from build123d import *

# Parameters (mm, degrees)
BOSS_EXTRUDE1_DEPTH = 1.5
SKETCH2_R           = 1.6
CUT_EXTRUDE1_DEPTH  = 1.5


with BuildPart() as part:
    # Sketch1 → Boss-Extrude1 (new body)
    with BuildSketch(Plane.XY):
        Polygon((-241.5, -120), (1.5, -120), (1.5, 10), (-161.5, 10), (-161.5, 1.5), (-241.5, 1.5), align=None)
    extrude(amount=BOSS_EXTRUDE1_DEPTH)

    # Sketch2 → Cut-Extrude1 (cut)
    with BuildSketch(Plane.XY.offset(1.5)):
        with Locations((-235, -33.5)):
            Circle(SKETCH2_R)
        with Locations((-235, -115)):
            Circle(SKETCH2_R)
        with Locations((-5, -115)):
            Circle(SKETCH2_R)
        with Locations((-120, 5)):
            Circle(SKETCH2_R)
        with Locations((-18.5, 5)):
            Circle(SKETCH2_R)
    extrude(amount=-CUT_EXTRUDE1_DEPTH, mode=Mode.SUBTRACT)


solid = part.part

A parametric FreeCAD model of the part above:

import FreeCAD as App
import Part
import Sketcher

V = App.Vector

doc = App.newDocument("Part")
body = doc.addObject("PartDesign::Body", "Body")

sketch1 = body.newObject("Sketcher::SketchObject", "Sketch")
sketch1.AttachmentSupport = (doc.getObject("XY_Plane"), [""])
sketch1.MapMode = "FlatFace"
sketch1.addGeometry([
    Part.LineSegment(V(-241.5, -120, 0), V(1.5, -120, 0)),
    Part.LineSegment(V(1.5, -120, 0), V(1.5, 10, 0)),
    Part.LineSegment(V(1.5, 10, 0), V(-161.5, 10, 0)),
    Part.LineSegment(V(-161.5, 10, 0), V(-161.5, 1.5, 0)),
    Part.LineSegment(V(-161.5, 1.5, 0), V(-241.5, 1.5, 0)),
    Part.LineSegment(V(-241.5, 1.5, 0), V(-241.5, -120, 0)),
], False)
sketch1.addConstraint([
    Sketcher.Constraint("Coincident", 0, 2, 1, 1),
    Sketcher.Constraint("Coincident", 1, 2, 2, 1),
    Sketcher.Constraint("Coincident", 2, 2, 3, 1),
    Sketcher.Constraint("Coincident", 3, 2, 4, 1),
    Sketcher.Constraint("Coincident", 4, 2, 5, 1),
    Sketcher.Constraint("Coincident", 5, 2, 0, 1),
    Sketcher.Constraint("Horizontal", 0),
    Sketcher.Constraint("Vertical", 1),
    Sketcher.Constraint("Horizontal", 2),
    Sketcher.Constraint("Vertical", 3),
    Sketcher.Constraint("Horizontal", 4),
    Sketcher.Constraint("Vertical", 5),
    Sketcher.Constraint("DistanceX", 0, 1, 0, 2, 243.0),
    Sketcher.Constraint("DistanceX", 2, 2, 2, 1, 163.0),
    Sketcher.Constraint("DistanceY", 1, 1, 1, 2, 130.0),
    Sketcher.Constraint("DistanceY", 3, 2, 3, 1, 8.5),
    Sketcher.Constraint("DistanceY", 0, 2, -1, 1, 120.0),
    Sketcher.Constraint("DistanceX", -1, 1, 0, 2, 1.5),
])
pad1 = body.newObject("PartDesign::Pad", "Pad")
pad1.Profile = sketch1
pad1.Length = 1.5

sketch2 = body.newObject("Sketcher::SketchObject", "Sketch001")
sketch2.AttachmentSupport = (doc.getObject("XY_Plane"), [""])
sketch2.MapMode = "FlatFace"
sketch2.AttachmentOffset = App.Placement(V(0, 0, 1.5), App.Rotation())
sketch2.addGeometry([
    Part.Circle(V(-235, -33.5, 0), V(0, 0, 1), 1.6),
    Part.Circle(V(-235, -115, 0), V(0, 0, 1), 1.6),
    Part.Circle(V(-5, -115, 0), V(0, 0, 1), 1.6),
    Part.Circle(V(-120, 5, 0), V(0, 0, 1), 1.6),
    Part.Circle(V(-18.5, 5, 0), V(0, 0, 1), 1.6),
], False)
sketch2.addConstraint([
    Sketcher.Constraint("Equal", 0, 1),
    Sketcher.Constraint("Equal", 1, 2),
    Sketcher.Constraint("Equal", 2, 3),
    Sketcher.Constraint("Equal", 3, 4),
    Sketcher.Constraint("Horizontal", 1, 3, 2, 3),
    Sketcher.Constraint("Horizontal", 3, 3, 4, 3),
    Sketcher.Constraint("Vertical", 0, 3, 1, 3),
    Sketcher.Constraint("Diameter", 0, 3.2),
    Sketcher.Constraint("DistanceX", 0, 3, -1, 1, 235.0),
    Sketcher.Constraint("DistanceY", 1, 3, -1, 1, 115.0),
    Sketcher.Constraint("DistanceX", 2, 3, -1, 1, 5.0),
    Sketcher.Constraint("DistanceX", 3, 3, -1, 1, 120.0),
    Sketcher.Constraint("DistanceY", -1, 1, 3, 3, 5.0),
    Sketcher.Constraint("DistanceY", 0, 3, -1, 1, 33.5),
    Sketcher.Constraint("DistanceX", 4, 3, -1, 1, 18.5),
])
pocket1 = body.newObject("PartDesign::Pocket", "Pocket")
pocket1.Profile = sketch2
pocket1.Length = 1.5

doc.recompute()
